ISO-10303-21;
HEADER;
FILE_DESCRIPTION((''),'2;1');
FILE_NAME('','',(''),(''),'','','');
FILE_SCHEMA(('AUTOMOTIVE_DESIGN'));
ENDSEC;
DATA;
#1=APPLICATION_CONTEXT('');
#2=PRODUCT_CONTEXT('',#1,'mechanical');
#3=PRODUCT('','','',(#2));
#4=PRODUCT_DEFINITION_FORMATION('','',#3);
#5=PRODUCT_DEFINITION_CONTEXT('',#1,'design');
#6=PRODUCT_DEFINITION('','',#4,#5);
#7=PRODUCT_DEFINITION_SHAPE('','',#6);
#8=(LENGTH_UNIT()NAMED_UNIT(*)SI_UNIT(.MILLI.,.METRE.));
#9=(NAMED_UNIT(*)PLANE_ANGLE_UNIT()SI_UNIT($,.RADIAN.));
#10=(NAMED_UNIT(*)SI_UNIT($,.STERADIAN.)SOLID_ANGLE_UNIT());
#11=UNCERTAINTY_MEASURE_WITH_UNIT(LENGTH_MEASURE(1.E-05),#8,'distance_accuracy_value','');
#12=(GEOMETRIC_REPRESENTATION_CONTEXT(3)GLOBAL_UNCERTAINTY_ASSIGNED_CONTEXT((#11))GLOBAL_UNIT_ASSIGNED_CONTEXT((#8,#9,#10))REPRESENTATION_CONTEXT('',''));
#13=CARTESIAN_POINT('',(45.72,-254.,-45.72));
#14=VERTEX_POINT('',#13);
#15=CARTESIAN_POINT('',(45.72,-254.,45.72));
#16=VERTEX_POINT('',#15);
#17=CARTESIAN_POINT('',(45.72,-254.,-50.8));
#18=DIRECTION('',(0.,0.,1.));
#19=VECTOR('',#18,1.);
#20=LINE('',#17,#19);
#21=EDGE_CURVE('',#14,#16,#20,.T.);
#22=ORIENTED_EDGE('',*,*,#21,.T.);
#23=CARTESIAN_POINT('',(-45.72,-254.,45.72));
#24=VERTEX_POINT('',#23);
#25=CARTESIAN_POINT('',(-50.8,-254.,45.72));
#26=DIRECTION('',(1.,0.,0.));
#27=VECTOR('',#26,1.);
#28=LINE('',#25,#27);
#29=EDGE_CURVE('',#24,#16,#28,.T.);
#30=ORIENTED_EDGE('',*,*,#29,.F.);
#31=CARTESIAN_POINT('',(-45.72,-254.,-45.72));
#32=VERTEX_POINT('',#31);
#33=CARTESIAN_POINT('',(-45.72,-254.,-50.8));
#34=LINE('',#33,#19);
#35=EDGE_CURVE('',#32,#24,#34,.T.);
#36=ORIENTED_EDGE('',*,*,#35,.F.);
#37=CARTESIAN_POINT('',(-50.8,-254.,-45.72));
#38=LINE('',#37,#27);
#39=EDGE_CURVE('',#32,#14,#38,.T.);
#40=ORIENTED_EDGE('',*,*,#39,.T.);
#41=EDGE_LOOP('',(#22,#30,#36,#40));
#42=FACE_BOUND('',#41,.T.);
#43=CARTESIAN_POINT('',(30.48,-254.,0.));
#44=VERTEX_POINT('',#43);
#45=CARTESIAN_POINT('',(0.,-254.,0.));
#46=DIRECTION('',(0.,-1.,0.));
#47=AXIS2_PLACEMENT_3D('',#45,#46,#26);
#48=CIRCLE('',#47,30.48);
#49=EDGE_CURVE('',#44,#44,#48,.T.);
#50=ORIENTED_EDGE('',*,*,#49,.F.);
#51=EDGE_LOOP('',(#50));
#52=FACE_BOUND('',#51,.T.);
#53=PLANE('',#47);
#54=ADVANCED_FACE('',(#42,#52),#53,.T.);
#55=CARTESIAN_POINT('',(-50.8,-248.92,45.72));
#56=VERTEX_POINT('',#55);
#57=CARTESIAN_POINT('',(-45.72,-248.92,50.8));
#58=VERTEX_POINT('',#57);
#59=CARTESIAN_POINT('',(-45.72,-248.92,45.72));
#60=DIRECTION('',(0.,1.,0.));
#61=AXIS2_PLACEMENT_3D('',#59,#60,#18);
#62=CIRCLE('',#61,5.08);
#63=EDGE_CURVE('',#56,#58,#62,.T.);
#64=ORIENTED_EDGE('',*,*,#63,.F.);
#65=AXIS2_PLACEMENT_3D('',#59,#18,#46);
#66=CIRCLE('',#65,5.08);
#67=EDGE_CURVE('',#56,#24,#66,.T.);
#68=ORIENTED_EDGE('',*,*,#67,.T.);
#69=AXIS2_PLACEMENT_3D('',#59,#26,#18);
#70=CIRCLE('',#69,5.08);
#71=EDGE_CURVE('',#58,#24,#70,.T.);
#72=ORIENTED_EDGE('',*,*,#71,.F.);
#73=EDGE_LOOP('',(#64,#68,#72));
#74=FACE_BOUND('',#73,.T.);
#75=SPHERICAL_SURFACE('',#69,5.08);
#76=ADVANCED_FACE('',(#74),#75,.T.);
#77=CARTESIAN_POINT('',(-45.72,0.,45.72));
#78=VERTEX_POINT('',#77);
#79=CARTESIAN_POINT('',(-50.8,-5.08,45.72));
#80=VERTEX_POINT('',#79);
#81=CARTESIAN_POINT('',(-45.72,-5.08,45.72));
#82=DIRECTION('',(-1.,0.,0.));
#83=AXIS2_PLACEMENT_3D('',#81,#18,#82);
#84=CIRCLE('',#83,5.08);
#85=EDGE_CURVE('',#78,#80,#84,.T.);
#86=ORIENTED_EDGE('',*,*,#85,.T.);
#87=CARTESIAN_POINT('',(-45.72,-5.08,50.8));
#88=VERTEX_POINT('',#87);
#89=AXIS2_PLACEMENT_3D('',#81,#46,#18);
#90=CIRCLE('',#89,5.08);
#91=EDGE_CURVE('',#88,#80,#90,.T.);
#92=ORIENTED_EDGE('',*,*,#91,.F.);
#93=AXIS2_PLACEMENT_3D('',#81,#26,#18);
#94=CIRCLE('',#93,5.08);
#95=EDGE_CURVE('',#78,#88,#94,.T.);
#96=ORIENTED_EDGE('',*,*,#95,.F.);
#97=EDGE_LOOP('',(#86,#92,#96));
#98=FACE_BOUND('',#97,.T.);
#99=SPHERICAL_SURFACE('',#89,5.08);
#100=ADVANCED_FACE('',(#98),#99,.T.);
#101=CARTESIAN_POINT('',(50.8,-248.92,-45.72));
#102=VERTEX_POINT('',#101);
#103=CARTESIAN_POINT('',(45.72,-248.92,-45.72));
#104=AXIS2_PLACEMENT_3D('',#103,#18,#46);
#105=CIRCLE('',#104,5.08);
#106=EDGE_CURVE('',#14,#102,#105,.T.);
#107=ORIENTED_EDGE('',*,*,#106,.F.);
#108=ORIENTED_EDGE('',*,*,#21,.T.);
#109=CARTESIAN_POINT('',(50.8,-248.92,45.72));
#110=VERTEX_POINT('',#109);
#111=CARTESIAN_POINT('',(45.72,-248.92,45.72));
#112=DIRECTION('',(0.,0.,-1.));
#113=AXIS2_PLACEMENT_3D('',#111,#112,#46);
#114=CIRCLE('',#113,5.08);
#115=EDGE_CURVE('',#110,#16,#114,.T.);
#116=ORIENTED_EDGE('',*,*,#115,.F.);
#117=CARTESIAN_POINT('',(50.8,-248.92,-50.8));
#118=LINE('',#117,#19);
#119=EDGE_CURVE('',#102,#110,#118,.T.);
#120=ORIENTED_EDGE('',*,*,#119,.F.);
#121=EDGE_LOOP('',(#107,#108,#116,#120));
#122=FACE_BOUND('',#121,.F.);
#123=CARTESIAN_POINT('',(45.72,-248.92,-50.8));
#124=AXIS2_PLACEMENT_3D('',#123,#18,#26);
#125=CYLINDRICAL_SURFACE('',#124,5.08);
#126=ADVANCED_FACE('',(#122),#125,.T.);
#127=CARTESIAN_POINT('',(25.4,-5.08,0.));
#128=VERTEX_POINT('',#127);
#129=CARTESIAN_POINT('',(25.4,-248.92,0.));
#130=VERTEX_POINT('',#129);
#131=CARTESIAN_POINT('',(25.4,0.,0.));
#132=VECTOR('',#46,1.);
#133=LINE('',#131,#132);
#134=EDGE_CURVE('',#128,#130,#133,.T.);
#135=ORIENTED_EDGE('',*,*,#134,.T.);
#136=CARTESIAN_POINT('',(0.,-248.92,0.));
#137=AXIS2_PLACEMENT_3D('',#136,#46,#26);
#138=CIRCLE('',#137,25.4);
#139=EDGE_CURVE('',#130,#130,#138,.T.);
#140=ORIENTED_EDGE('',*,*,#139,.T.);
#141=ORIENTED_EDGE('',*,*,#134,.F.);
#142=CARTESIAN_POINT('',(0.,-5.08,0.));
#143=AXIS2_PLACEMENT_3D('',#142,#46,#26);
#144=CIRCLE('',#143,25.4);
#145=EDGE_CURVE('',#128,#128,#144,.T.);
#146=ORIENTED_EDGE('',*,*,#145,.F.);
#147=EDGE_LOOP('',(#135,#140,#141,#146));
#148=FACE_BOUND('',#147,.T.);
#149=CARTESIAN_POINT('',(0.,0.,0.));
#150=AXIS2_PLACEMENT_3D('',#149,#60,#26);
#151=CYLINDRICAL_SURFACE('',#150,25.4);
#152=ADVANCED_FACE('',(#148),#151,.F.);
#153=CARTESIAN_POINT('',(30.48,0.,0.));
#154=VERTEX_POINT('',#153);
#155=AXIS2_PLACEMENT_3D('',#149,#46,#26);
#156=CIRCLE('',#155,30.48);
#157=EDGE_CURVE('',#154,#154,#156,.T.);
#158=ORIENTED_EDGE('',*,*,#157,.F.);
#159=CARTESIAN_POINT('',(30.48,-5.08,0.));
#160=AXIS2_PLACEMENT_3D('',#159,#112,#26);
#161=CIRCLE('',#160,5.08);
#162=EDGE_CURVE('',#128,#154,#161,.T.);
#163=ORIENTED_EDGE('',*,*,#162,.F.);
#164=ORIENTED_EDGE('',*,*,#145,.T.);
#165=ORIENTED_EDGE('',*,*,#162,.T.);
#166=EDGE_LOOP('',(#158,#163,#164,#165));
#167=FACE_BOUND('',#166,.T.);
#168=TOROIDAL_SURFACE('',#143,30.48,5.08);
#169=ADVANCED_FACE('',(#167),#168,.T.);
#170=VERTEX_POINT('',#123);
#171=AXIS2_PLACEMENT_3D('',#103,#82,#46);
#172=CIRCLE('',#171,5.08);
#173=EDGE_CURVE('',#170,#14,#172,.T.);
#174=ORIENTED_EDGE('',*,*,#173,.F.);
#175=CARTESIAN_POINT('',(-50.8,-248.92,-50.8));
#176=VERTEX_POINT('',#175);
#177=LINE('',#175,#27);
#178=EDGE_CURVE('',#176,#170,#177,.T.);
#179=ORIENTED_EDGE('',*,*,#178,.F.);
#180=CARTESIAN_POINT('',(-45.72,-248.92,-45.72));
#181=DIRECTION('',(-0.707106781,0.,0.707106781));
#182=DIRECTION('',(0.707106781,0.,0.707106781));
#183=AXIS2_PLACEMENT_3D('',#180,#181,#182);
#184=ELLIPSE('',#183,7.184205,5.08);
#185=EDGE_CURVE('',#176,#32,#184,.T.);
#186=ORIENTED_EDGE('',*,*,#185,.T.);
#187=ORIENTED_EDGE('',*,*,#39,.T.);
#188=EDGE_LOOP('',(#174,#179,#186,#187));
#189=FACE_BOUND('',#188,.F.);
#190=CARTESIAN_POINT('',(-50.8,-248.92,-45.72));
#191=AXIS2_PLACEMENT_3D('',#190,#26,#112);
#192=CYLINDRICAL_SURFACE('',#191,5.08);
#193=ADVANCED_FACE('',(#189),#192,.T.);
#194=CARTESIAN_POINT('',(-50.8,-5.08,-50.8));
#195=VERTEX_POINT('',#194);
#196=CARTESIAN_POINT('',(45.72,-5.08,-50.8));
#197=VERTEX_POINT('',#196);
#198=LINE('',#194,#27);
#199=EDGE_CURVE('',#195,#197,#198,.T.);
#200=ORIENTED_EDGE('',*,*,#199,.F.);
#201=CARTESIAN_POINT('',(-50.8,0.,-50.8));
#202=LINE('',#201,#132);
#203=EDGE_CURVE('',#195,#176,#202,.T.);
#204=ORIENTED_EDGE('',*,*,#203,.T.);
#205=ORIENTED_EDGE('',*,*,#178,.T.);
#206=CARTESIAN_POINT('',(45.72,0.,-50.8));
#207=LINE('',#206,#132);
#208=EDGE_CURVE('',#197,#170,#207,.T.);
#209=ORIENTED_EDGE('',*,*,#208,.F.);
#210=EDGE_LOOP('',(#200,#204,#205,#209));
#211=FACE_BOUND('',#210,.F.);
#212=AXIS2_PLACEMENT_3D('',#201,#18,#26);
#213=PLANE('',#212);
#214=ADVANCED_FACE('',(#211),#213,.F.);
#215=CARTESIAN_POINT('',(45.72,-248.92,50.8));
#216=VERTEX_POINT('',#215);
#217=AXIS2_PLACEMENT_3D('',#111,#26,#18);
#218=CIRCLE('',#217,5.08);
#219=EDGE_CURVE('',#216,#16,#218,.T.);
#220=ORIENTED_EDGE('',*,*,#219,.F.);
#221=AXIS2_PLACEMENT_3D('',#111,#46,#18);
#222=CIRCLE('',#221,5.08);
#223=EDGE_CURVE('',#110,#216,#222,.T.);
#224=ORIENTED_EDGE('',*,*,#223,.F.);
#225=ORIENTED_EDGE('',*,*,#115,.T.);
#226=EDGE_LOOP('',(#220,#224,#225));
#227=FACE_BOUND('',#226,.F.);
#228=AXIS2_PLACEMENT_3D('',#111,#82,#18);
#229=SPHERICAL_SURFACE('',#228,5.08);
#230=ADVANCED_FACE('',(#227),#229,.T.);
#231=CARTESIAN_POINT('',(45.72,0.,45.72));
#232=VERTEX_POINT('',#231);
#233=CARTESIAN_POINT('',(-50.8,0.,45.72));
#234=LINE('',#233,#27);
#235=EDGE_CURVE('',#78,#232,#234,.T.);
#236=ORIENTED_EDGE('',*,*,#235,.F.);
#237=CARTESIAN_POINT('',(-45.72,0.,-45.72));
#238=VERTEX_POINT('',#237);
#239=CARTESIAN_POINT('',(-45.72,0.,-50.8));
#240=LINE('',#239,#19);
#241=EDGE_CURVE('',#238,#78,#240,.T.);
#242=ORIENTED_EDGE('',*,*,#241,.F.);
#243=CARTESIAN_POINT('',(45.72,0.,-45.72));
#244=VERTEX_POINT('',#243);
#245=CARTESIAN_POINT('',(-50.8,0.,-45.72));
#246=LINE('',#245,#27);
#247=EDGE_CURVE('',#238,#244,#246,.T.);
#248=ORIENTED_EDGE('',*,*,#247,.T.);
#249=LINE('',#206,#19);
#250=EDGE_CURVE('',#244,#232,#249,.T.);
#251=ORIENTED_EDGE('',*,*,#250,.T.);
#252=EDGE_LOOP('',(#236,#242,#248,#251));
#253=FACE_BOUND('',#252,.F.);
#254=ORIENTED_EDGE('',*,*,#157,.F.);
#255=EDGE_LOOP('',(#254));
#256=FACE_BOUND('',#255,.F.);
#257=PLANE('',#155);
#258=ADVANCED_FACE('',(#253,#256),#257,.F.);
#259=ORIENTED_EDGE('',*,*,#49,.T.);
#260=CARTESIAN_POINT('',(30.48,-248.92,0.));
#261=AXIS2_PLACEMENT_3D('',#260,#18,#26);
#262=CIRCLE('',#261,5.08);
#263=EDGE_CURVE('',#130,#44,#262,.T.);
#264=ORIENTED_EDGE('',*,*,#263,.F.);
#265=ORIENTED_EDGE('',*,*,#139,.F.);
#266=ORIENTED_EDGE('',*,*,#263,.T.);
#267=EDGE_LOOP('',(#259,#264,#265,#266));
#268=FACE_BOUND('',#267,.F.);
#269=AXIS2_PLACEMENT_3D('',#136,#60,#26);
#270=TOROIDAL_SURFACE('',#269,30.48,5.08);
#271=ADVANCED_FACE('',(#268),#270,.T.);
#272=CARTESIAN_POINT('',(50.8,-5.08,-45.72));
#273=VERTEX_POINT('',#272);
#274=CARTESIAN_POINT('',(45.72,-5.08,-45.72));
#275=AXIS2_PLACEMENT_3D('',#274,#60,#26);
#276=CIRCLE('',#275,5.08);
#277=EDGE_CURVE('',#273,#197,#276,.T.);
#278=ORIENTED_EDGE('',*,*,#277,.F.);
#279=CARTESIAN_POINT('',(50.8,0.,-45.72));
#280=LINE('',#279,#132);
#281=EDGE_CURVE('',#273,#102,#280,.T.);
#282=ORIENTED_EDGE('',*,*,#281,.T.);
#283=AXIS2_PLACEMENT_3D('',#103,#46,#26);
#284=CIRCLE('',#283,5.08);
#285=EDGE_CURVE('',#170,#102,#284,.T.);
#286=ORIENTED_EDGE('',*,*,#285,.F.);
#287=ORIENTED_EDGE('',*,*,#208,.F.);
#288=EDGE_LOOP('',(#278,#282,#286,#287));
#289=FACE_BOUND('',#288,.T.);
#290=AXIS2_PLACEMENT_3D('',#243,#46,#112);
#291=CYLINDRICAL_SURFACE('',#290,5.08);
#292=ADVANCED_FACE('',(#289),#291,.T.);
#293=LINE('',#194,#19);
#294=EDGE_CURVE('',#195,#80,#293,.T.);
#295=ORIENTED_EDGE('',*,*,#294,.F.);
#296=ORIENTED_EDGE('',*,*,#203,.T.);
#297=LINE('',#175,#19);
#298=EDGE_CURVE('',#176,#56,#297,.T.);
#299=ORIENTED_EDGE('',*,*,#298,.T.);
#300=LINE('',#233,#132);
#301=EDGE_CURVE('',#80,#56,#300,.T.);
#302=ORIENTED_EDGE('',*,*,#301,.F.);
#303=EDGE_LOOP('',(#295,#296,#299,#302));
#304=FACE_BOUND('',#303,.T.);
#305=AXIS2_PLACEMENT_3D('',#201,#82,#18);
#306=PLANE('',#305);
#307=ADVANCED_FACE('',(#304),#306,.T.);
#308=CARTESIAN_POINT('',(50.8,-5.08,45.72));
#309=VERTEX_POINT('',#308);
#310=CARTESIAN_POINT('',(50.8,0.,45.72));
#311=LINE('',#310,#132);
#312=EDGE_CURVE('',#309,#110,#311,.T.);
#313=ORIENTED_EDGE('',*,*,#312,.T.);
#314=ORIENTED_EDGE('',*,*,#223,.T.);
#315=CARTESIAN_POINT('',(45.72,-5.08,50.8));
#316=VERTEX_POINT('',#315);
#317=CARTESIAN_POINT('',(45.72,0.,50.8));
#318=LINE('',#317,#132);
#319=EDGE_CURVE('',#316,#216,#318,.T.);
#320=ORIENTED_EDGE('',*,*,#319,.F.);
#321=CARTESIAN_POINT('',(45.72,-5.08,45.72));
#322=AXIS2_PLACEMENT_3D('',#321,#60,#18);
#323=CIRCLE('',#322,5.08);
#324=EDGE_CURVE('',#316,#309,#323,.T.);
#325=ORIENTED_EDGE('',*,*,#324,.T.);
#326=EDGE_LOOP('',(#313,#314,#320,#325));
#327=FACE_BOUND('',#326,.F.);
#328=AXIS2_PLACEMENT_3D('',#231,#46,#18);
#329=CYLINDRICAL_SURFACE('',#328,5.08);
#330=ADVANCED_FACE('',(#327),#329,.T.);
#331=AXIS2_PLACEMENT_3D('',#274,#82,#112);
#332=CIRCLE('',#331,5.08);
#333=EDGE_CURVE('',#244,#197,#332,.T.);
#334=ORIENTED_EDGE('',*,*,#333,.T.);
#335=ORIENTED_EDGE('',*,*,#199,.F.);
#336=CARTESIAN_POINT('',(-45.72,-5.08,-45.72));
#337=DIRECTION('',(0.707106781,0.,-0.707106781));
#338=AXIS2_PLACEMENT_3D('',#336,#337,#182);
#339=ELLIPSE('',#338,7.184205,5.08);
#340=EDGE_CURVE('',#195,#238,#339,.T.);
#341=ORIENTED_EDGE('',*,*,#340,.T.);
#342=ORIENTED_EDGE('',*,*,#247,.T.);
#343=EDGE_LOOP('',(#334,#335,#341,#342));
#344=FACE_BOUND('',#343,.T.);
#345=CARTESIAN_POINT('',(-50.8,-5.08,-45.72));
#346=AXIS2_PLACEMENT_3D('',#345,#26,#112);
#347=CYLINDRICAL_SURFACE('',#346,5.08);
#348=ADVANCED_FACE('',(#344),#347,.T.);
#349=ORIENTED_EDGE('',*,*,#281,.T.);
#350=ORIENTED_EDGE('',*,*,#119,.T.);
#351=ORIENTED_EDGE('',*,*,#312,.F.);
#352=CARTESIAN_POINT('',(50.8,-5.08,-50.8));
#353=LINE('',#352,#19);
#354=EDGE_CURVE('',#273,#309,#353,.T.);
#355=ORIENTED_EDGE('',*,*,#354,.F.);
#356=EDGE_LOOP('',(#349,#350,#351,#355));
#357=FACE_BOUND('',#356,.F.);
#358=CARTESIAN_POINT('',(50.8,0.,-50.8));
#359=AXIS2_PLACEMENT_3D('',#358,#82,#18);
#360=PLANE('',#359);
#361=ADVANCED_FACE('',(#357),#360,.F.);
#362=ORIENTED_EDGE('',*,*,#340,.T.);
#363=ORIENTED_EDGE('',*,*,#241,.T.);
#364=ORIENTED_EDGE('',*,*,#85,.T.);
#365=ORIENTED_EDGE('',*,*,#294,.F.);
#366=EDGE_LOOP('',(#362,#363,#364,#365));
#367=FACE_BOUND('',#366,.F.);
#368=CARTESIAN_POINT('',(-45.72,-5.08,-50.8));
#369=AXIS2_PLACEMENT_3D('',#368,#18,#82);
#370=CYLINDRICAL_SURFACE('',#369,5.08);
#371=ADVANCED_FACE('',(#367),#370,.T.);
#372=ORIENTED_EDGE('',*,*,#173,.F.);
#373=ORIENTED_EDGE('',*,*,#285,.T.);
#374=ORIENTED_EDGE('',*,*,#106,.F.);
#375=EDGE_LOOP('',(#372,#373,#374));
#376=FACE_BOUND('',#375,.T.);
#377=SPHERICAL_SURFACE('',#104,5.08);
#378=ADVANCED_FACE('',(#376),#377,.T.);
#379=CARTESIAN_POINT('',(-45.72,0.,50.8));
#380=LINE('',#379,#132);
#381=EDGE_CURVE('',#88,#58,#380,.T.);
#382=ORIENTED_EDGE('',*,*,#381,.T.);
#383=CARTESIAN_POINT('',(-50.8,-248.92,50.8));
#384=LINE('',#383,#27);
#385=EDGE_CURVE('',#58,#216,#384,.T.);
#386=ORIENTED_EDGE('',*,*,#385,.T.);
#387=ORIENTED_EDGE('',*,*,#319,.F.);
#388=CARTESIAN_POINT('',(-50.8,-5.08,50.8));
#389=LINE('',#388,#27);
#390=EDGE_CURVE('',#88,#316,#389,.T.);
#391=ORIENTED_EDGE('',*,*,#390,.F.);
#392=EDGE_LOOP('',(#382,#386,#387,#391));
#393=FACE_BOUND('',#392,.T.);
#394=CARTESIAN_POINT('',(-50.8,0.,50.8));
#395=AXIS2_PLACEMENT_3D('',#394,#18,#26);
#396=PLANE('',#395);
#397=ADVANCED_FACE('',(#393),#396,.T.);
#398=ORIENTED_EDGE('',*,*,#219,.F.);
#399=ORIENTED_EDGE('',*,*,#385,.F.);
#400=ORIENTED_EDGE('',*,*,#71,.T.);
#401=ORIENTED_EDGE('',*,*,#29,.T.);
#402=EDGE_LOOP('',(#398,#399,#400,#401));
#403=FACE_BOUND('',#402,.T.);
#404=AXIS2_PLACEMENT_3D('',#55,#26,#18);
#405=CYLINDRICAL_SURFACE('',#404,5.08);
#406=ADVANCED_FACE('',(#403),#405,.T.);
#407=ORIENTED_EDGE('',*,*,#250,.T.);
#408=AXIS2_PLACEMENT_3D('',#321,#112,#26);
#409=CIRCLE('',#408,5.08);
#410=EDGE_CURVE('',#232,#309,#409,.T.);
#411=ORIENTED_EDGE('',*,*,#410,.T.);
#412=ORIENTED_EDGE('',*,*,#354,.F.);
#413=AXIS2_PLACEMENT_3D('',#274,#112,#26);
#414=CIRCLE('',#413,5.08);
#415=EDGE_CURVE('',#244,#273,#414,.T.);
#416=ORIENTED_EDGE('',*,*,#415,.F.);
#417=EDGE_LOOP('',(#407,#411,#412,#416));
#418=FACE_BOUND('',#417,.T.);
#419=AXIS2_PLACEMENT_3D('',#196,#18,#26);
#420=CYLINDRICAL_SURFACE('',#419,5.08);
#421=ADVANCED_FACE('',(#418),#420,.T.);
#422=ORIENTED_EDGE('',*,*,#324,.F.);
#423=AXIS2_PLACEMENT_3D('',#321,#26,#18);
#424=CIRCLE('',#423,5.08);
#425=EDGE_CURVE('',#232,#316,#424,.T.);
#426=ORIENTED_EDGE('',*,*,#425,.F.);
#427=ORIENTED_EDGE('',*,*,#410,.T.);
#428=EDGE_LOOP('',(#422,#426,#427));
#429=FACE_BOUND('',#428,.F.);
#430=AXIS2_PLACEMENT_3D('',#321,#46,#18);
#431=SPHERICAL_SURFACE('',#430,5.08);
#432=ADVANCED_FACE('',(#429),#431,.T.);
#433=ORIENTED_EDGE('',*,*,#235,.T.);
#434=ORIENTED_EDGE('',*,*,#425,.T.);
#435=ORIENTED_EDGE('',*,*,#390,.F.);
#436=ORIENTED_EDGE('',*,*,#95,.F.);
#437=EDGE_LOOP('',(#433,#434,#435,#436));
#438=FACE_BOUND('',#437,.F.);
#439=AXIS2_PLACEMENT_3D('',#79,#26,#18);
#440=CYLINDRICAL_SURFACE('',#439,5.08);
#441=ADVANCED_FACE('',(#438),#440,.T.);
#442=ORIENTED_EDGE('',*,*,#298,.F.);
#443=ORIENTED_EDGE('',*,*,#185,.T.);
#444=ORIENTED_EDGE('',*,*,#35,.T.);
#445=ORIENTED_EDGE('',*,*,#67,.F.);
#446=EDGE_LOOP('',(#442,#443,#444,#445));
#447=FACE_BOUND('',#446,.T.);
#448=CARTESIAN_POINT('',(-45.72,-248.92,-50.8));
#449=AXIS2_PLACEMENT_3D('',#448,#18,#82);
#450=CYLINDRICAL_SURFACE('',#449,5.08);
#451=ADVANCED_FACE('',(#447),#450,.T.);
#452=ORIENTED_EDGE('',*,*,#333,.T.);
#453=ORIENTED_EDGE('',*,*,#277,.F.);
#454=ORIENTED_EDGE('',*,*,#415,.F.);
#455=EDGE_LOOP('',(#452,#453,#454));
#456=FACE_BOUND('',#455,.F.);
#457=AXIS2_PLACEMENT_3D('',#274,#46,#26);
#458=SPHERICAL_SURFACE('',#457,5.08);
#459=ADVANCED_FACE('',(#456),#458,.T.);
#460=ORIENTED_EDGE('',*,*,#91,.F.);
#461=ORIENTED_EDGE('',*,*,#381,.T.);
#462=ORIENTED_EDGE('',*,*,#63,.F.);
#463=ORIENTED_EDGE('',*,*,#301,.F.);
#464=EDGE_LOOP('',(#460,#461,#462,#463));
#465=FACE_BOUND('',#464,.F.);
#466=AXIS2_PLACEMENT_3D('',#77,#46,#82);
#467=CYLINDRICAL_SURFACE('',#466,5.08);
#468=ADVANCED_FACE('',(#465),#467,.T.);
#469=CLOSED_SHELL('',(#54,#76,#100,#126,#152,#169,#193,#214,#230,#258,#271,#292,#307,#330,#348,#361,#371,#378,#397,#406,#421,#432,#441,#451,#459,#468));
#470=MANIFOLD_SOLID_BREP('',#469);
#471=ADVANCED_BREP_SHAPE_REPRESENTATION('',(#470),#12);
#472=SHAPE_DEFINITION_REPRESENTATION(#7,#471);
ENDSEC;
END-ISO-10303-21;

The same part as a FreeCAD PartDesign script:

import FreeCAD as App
import Part
import Sketcher

V = App.Vector
Q = App.Units.Quantity


def edges_at(feature, points):
    """Names of the edges that pass closest to the given points."""
    edges = feature.Shape.Edges
    near = lambda p: min(range(len(edges)), key=lambda i: edges[i].distToShape(Part.Vertex(*p))[0])
    return sorted({f"Edge{near(p) + 1}" for p in points})

doc = App.newDocument("Part")
body = doc.addObject("PartDesign::Body", "Body")

sketch1 = body.newObject("Sketcher::SketchObject", "Sketch")
sketch1.AttachmentSupport = (doc.getObject("XZ_Plane"), [""])
sketch1.MapMode = "FlatFace"
sketch1.addGeometry([
    Part.LineSegment(V(-51, 51, 0), V(-51, -51, 0)),
    Part.LineSegment(V(-51, -51, 0), V(51, -51, 0)),
    Part.LineSegment(V(51, -51, 0), V(51, 51, 0)),
    Part.LineSegment(V(51, 51, 0), V(-51, 51, 0)),
    Part.Circle(V(0, 0, 0), V(0, 0, 1), 25),
], False)
sketch1.addConstraint([
    Sketcher.Constraint("Coincident", 0, 2, 1, 1),
    Sketcher.Constraint("Coincident", 1, 2, 2, 1),
    Sketcher.Constraint("Coincident", 2, 2, 3, 1),
    Sketcher.Constraint("Coincident", 3, 2, 0, 1),
    Sketcher.Constraint("Vertical", 0),
    Sketcher.Constraint("Horizontal", 1),
    Sketcher.Constraint("Vertical", 2),
    Sketcher.Constraint("Horizontal", 3),
    Sketcher.Constraint("Coincident", 4, 3, -1, 1),
    Sketcher.Constraint("Symmetric", 0, 2, 2, 2, -1, 1),
    Sketcher.Constraint("Equal", 3, 0),
    Sketcher.Constraint("Diameter", 4, Q("2 in")),
    Sketcher.Constraint("DistanceX", 1, 1, 1, 2, Q("4 in")),
])
pad1 = body.newObject("PartDesign::Pad", "Pad")
pad1.Profile = sketch1
pad1.Length = Q("10 in")
doc.recompute()

fillet = body.newObject("PartDesign::Fillet", "Fillet")
fillet.Base = (pad1, edges_at(pad1, [
    (0, -254, 50.8),
    (50.8, -127, 50.8),
    (-50.8, -127, 50.8),
    (0, 0, 50.8),
    (50.8, -254, 0),
    (-50.8, -254, 0),
    (0, -254, -50.8),
    (-25.4, -254, 0),
    (50.8, -127, -50.8),
    (50.8, 0, 0),
    (-50.8, 0, 0),
    (0, 0, -50.8),
    (-25.4, 0, 0),
]))
fillet.Radius = Q("0.2 in")

doc.recompute()
